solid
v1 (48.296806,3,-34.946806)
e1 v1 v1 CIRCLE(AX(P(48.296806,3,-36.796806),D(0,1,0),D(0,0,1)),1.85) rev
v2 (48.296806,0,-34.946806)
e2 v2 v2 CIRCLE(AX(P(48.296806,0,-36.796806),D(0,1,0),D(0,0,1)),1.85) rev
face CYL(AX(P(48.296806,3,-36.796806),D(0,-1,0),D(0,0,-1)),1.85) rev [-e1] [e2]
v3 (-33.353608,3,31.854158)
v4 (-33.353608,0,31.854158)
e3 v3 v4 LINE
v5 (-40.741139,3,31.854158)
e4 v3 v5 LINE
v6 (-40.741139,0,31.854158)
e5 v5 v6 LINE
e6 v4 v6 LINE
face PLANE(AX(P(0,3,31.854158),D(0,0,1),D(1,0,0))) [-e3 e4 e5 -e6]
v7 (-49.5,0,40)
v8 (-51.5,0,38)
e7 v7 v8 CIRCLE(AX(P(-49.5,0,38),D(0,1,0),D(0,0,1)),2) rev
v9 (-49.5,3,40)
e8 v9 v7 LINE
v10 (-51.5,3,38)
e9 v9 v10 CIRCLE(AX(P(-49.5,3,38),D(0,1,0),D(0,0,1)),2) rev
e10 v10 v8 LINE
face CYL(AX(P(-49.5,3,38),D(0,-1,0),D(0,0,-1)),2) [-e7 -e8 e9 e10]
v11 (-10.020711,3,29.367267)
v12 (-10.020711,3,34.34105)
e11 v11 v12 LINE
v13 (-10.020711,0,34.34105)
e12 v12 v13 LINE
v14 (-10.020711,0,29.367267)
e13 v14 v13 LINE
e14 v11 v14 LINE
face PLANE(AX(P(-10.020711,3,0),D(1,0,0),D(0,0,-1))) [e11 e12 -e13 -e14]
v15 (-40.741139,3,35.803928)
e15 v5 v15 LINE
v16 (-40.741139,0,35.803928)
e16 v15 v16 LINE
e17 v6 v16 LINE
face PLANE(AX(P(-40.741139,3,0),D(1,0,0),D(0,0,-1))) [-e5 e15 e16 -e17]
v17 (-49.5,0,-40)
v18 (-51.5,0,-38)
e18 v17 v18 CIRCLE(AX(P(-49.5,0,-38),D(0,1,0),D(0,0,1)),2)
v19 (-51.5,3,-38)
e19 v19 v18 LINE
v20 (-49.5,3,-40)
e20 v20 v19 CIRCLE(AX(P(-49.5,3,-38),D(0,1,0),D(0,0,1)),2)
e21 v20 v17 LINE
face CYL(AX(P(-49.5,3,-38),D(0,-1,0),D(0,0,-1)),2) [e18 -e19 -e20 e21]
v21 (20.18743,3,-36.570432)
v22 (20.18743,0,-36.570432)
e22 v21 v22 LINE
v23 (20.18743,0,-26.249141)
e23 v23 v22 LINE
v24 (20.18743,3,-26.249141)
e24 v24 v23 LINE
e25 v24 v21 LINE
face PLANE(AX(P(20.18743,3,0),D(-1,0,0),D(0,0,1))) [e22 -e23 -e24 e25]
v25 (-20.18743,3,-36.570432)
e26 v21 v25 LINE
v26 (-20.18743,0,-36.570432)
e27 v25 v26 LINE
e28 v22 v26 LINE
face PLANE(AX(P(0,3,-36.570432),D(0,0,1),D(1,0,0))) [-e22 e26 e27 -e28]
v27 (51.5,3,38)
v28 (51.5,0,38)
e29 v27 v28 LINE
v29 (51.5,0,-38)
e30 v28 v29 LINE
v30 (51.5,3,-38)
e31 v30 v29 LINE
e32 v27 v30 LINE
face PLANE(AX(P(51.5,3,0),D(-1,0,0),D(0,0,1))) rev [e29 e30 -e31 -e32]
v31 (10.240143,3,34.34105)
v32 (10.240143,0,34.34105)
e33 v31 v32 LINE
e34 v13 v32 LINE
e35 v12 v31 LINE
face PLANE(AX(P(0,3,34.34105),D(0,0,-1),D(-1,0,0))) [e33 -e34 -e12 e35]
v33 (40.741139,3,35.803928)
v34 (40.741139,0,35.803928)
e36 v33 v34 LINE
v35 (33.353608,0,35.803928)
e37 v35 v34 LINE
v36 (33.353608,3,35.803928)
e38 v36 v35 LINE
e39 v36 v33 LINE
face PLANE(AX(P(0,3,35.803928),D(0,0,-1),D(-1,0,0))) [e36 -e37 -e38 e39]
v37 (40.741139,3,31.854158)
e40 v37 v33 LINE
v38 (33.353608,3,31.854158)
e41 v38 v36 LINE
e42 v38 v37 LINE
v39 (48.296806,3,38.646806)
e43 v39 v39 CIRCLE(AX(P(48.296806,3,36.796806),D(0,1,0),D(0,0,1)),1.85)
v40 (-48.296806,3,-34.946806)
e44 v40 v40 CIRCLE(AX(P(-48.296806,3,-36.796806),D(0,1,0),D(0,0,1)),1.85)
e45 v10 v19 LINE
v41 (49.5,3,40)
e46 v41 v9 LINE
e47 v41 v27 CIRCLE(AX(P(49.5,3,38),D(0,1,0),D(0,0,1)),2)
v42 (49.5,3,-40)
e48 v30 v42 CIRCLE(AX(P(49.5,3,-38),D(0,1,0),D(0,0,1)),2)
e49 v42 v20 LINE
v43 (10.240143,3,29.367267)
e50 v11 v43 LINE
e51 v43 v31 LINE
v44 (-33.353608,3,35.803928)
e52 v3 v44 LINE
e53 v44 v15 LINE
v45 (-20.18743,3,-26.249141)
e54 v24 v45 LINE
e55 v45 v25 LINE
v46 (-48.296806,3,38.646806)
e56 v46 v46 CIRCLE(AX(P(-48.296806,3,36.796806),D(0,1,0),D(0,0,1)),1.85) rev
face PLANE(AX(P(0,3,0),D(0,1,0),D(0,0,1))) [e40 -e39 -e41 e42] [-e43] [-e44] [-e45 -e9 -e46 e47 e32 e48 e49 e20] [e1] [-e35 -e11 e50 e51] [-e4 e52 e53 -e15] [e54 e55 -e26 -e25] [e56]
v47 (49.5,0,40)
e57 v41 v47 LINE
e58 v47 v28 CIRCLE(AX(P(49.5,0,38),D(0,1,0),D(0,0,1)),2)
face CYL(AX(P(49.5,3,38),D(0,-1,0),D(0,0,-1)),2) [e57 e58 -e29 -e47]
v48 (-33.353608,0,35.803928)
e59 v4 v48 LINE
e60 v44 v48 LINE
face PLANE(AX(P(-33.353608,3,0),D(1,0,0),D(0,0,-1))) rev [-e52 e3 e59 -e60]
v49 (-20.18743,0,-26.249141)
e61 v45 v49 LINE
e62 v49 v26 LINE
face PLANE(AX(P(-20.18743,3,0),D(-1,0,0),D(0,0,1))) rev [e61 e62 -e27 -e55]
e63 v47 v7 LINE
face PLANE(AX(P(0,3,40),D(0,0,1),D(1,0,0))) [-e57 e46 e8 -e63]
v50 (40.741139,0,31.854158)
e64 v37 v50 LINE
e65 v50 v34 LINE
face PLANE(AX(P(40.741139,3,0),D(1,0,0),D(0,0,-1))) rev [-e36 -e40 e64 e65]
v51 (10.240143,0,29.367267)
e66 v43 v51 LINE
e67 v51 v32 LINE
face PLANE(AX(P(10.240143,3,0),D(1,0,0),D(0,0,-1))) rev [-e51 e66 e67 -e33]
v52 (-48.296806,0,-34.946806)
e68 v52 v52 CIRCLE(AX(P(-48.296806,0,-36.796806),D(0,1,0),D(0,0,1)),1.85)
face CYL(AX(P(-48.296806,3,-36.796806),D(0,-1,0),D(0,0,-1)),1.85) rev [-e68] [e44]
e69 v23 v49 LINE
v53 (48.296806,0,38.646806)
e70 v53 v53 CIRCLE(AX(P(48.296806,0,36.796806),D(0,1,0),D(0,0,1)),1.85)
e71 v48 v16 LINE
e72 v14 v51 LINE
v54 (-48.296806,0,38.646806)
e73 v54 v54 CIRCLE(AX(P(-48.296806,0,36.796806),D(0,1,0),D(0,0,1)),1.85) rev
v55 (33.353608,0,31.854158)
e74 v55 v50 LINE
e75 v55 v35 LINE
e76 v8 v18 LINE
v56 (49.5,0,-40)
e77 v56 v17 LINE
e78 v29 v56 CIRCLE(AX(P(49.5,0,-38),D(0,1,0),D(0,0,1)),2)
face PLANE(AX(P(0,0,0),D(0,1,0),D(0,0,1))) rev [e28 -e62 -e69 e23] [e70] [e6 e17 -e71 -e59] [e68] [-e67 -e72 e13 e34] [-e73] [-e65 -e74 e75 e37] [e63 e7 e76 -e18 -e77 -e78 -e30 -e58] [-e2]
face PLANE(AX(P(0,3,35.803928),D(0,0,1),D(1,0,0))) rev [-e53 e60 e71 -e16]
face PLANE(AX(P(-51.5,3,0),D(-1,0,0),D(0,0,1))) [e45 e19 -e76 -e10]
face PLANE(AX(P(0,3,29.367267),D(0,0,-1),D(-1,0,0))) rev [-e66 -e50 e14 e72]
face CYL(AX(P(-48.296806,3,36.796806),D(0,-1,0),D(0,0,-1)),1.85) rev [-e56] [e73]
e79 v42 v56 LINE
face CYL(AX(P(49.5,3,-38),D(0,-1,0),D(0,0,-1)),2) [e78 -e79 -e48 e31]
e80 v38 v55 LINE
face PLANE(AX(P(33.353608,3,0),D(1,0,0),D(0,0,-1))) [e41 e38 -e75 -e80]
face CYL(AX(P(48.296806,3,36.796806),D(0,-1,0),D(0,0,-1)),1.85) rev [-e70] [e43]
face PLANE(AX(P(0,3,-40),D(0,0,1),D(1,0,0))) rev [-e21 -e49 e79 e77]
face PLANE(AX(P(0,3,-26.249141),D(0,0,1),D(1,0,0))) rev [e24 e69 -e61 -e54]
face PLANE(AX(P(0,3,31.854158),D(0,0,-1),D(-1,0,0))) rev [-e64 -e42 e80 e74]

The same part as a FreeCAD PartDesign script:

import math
import FreeCAD as App
import Part
import Sketcher
from FreeCAD import Vector

doc = App.newDocument("Part")
body = doc.addObject("PartDesign::Body", "Body")

# Sketch on XZ plane
sketch1 = doc.addObject("Sketcher::SketchObject", "Sketch")
body.addObject(sketch1)
sketch1.AttachmentSupport = (doc.XZ_Plane, [""])
sketch1.MapMode = "FlatFace"
sketch1.addGeometry([
    Part.LineSegment(Vector(-49.5, 40, 0), Vector(49.5, 40, 0)),  # 0
    Part.ArcOfCircle(Part.Circle(Vector(49.5, 38, 0), Vector(0, 0, 1), 2), math.radians(0), math.radians(90)),  # 1
    Part.LineSegment(Vector(51.5, 38, 0), Vector(51.5, -38, 0)),  # 2
    Part.ArcOfCircle(Part.Circle(Vector(49.5, -38, 0), Vector(0, 0, 1), 2), math.radians(-90), math.radians(0)),  # 3
    Part.LineSegment(Vector(49.5, -40, 0), Vector(-49.5, -40, 0)),  # 4
    Part.ArcOfCircle(Part.Circle(Vector(-49.5, -38, 0), Vector(0, 0, 1), 2), math.radians(-180), math.radians(-90)),  # 5
    Part.LineSegment(Vector(-51.5, -38, 0), Vector(-51.5, 38, 0)),  # 6
    Part.ArcOfCircle(Part.Circle(Vector(-49.5, 38, 0), Vector(0, 0, 1), 2), math.radians(90), math.radians(180)),  # 7
    Part.Circle(Vector(48.3, 36.8, 0), Vector(0, 0, 1), 1.9),  # 8
    Part.LineSegment(Vector(33.4, 35.8, 0), Vector(33.4, 31.9, 0)),  # 9
    Part.LineSegment(Vector(33.4, 31.9, 0), Vector(40.7, 31.9, 0)),  # 10
    Part.LineSegment(Vector(40.7, 31.9, 0), Vector(40.7, 35.8, 0)),  # 11
    Part.LineSegment(Vector(40.7, 35.8, 0), Vector(33.4, 35.8, 0)),  # 12
    Part.LineSegment(Vector(-10, 34.3, 0), Vector(-10, 29.4, 0)),  # 13
    Part.LineSegment(Vector(-10, 29.4, 0), Vector(10.2, 29.4, 0)),  # 14
    Part.LineSegment(Vector(10.2, 29.4, 0), Vector(10.2, 34.3, 0)),  # 15
    Part.LineSegment(Vector(10.2, 34.3, 0), Vector(-10, 34.3, 0)),  # 16
    Part.LineSegment(Vector(-40.7, 35.8, 0), Vector(-40.7, 31.9, 0)),  # 17
    Part.LineSegment(Vector(-40.7, 31.9, 0), Vector(-33.4, 31.9, 0)),  # 18
    Part.LineSegment(Vector(-33.4, 31.9, 0), Vector(-33.4, 35.8, 0)),  # 19
    Part.LineSegment(Vector(-33.4, 35.8, 0), Vector(-40.7, 35.8, 0)),  # 20
    Part.Circle(Vector(-48.3, 36.8, 0), Vector(0, 0, 1), 1.9),  # 21
    Part.Circle(Vector(48.3, -36.8, 0), Vector(0, 0, 1), 1.9),  # 22
    Part.LineSegment(Vector(-20.2, -26.2, 0), Vector(-20.2, -36.6, 0)),  # 23
    Part.LineSegment(Vector(-20.2, -36.6, 0), Vector(20.2, -36.6, 0)),  # 24
    Part.LineSegment(Vector(20.2, -36.6, 0), Vector(20.2, -26.2, 0)),  # 25
    Part.LineSegment(Vector(20.2, -26.2, 0), Vector(-20.2, -26.2, 0)),  # 26
    Part.Circle(Vector(-48.3, -36.8, 0), Vector(0, 0, 1), 1.9),  # 27
], False)
sketch1.addConstraint([
    Sketcher.Constraint("Tangent", 0, 2, 1, 2),
    Sketcher.Constraint("Tangent", 1, 1, 2, 1),
    Sketcher.Constraint("Tangent", 2, 2, 3, 2),
    Sketcher.Constraint("Tangent", 3, 1, 4, 1),
    Sketcher.Constraint("Tangent", 4, 2, 5, 2),
    Sketcher.Constraint("Tangent", 5, 1, 6, 1),
    Sketcher.Constraint("Tangent", 6, 2, 7, 2),
    Sketcher.Constraint("Tangent", 7, 1, 0, 1),
    Sketcher.Constraint("Coincident", 9, 2, 10, 1),
    Sketcher.Constraint("Coincident", 10, 2, 11, 1),
    Sketcher.Constraint("Coincident", 11, 2, 12, 1),
    Sketcher.Constraint("Coincident", 12, 2, 9, 1),
    Sketcher.Constraint("Coincident", 13, 2, 14, 1),
    Sketcher.Constraint("Coincident", 14, 2, 15, 1),
    Sketcher.Constraint("Coincident", 15, 2, 16, 1),
    Sketcher.Constraint("Coincident", 16, 2, 13, 1),
    Sketcher.Constraint("Coincident", 17, 2, 18, 1),
    Sketcher.Constraint("Coincident", 18, 2, 19, 1),
    Sketcher.Constraint("Coincident", 19, 2, 20, 1),
    Sketcher.Constraint("Coincident", 20, 2, 17, 1),
    Sketcher.Constraint("Coincident", 23, 2, 24, 1),
    Sketcher.Constraint("Coincident", 24, 2, 25, 1),
    Sketcher.Constraint("Coincident", 25, 2, 26, 1),
    Sketcher.Constraint("Coincident", 26, 2, 23, 1),
    Sketcher.Constraint("Horizontal", 0),
    Sketcher.Constraint("Vertical", 2),
    Sketcher.Constraint("Horizontal", 4),
    Sketcher.Constraint("Vertical", 6),
    Sketcher.Constraint("Vertical", 9),
    Sketcher.Constraint("Horizontal", 10),
    Sketcher.Constraint("Vertical", 11),
    Sketcher.Constraint("Horizontal", 12),
    Sketcher.Constraint("Vertical", 13),
    Sketcher.Constraint("Horizontal", 14),
    Sketcher.Constraint("Vertical", 15),
    Sketcher.Constraint("Horizontal", 16),
    Sketcher.Constraint("Vertical", 17),
    Sketcher.Constraint("Horizontal", 18),
    Sketcher.Constraint("Vertical", 19),
    Sketcher.Constraint("Horizontal", 20),
    Sketcher.Constraint("Vertical", 23),
    Sketcher.Constraint("Horizontal", 24),
    Sketcher.Constraint("Vertical", 25),
    Sketcher.Constraint("Horizontal", 26),
    Sketcher.Constraint("Equal", 1, 3),
    Sketcher.Constraint("Equal", 3, 5),
    Sketcher.Constraint("Equal", 5, 7),
    Sketcher.Constraint("Equal", 8, 21),
    Sketcher.Constraint("Equal", 21, 22),
    Sketcher.Constraint("Equal", 22, 27),
    Sketcher.Constraint("Symmetric", 1, 3, 5, 3, -1, 1),
    Sketcher.Constraint("Symmetric", 21, 3, 22, 3, -1, 1),
    Sketcher.Constraint("Symmetric", 8, 3, 27, 3, -1, 1),
    Sketcher.Constraint("Symmetric", 8, 3, 21, 3, -2),
    Sketcher.Constraint("Symmetric", 10, 2, 17, 2, -2),
    Sketcher.Constraint("Symmetric", 12, 2, 19, 2, -2),
    Sketcher.Constraint("Radius", 1, 2.0),
    Sketcher.Constraint("Diameter", 8, 3.7),
    Sketcher.Constraint("DistanceX", 0, 1, 0, 2, 99.0),
    Sketcher.Constraint("DistanceY", 2, 2, 2, 1, 76.0),
    Sketcher.Constraint("DistanceX", 10, 1, 10, 2, 7.387532),
    Sketcher.Constraint("DistanceX", 24, 1, 24, 2, 40.37486),
    Sketcher.Constraint("DistanceY", 9, 2, 9, 1, 3.949769),
    Sketcher.Constraint("DistanceY", 23, 2, 23, 1, 10.321291),
    Sketcher.Constraint("DistanceX", 9, 2, 8, 3, 14.943198),
    Sketcher.Constraint("DistanceY", 23, 2, 13, 2, 65.937698),
    Sketcher.Constraint("DistanceX", 14, 1, 14, 2, 20.260854),
    Sketcher.Constraint("DistanceY", 13, 2, 13, 1, 4.973784),
    Sketcher.Constraint("DistanceY", -1, 1, 9, 2, 31.854158),
    Sketcher.Constraint("DistanceX", -1, 1, 10, 2, 40.741139),
    Sketcher.Constraint("DistanceX", 13, 2, -1, 1, 10.020711),
    Sketcher.Constraint("DistanceY", -1, 1, 15, 2, 34.34105),
    Sketcher.Constraint("DistanceX", 23, 2, -1, 1, 20.18743),
    Sketcher.Constraint("DistanceY", 11, 2, 8, 3, 0.992879),
])
pad1 = doc.addObject("PartDesign::Pad", "Pad")
body.addObject(pad1)
pad1.Profile = sketch1
pad1.Length = 3
pad1.Reversed = True

doc.recompute()
